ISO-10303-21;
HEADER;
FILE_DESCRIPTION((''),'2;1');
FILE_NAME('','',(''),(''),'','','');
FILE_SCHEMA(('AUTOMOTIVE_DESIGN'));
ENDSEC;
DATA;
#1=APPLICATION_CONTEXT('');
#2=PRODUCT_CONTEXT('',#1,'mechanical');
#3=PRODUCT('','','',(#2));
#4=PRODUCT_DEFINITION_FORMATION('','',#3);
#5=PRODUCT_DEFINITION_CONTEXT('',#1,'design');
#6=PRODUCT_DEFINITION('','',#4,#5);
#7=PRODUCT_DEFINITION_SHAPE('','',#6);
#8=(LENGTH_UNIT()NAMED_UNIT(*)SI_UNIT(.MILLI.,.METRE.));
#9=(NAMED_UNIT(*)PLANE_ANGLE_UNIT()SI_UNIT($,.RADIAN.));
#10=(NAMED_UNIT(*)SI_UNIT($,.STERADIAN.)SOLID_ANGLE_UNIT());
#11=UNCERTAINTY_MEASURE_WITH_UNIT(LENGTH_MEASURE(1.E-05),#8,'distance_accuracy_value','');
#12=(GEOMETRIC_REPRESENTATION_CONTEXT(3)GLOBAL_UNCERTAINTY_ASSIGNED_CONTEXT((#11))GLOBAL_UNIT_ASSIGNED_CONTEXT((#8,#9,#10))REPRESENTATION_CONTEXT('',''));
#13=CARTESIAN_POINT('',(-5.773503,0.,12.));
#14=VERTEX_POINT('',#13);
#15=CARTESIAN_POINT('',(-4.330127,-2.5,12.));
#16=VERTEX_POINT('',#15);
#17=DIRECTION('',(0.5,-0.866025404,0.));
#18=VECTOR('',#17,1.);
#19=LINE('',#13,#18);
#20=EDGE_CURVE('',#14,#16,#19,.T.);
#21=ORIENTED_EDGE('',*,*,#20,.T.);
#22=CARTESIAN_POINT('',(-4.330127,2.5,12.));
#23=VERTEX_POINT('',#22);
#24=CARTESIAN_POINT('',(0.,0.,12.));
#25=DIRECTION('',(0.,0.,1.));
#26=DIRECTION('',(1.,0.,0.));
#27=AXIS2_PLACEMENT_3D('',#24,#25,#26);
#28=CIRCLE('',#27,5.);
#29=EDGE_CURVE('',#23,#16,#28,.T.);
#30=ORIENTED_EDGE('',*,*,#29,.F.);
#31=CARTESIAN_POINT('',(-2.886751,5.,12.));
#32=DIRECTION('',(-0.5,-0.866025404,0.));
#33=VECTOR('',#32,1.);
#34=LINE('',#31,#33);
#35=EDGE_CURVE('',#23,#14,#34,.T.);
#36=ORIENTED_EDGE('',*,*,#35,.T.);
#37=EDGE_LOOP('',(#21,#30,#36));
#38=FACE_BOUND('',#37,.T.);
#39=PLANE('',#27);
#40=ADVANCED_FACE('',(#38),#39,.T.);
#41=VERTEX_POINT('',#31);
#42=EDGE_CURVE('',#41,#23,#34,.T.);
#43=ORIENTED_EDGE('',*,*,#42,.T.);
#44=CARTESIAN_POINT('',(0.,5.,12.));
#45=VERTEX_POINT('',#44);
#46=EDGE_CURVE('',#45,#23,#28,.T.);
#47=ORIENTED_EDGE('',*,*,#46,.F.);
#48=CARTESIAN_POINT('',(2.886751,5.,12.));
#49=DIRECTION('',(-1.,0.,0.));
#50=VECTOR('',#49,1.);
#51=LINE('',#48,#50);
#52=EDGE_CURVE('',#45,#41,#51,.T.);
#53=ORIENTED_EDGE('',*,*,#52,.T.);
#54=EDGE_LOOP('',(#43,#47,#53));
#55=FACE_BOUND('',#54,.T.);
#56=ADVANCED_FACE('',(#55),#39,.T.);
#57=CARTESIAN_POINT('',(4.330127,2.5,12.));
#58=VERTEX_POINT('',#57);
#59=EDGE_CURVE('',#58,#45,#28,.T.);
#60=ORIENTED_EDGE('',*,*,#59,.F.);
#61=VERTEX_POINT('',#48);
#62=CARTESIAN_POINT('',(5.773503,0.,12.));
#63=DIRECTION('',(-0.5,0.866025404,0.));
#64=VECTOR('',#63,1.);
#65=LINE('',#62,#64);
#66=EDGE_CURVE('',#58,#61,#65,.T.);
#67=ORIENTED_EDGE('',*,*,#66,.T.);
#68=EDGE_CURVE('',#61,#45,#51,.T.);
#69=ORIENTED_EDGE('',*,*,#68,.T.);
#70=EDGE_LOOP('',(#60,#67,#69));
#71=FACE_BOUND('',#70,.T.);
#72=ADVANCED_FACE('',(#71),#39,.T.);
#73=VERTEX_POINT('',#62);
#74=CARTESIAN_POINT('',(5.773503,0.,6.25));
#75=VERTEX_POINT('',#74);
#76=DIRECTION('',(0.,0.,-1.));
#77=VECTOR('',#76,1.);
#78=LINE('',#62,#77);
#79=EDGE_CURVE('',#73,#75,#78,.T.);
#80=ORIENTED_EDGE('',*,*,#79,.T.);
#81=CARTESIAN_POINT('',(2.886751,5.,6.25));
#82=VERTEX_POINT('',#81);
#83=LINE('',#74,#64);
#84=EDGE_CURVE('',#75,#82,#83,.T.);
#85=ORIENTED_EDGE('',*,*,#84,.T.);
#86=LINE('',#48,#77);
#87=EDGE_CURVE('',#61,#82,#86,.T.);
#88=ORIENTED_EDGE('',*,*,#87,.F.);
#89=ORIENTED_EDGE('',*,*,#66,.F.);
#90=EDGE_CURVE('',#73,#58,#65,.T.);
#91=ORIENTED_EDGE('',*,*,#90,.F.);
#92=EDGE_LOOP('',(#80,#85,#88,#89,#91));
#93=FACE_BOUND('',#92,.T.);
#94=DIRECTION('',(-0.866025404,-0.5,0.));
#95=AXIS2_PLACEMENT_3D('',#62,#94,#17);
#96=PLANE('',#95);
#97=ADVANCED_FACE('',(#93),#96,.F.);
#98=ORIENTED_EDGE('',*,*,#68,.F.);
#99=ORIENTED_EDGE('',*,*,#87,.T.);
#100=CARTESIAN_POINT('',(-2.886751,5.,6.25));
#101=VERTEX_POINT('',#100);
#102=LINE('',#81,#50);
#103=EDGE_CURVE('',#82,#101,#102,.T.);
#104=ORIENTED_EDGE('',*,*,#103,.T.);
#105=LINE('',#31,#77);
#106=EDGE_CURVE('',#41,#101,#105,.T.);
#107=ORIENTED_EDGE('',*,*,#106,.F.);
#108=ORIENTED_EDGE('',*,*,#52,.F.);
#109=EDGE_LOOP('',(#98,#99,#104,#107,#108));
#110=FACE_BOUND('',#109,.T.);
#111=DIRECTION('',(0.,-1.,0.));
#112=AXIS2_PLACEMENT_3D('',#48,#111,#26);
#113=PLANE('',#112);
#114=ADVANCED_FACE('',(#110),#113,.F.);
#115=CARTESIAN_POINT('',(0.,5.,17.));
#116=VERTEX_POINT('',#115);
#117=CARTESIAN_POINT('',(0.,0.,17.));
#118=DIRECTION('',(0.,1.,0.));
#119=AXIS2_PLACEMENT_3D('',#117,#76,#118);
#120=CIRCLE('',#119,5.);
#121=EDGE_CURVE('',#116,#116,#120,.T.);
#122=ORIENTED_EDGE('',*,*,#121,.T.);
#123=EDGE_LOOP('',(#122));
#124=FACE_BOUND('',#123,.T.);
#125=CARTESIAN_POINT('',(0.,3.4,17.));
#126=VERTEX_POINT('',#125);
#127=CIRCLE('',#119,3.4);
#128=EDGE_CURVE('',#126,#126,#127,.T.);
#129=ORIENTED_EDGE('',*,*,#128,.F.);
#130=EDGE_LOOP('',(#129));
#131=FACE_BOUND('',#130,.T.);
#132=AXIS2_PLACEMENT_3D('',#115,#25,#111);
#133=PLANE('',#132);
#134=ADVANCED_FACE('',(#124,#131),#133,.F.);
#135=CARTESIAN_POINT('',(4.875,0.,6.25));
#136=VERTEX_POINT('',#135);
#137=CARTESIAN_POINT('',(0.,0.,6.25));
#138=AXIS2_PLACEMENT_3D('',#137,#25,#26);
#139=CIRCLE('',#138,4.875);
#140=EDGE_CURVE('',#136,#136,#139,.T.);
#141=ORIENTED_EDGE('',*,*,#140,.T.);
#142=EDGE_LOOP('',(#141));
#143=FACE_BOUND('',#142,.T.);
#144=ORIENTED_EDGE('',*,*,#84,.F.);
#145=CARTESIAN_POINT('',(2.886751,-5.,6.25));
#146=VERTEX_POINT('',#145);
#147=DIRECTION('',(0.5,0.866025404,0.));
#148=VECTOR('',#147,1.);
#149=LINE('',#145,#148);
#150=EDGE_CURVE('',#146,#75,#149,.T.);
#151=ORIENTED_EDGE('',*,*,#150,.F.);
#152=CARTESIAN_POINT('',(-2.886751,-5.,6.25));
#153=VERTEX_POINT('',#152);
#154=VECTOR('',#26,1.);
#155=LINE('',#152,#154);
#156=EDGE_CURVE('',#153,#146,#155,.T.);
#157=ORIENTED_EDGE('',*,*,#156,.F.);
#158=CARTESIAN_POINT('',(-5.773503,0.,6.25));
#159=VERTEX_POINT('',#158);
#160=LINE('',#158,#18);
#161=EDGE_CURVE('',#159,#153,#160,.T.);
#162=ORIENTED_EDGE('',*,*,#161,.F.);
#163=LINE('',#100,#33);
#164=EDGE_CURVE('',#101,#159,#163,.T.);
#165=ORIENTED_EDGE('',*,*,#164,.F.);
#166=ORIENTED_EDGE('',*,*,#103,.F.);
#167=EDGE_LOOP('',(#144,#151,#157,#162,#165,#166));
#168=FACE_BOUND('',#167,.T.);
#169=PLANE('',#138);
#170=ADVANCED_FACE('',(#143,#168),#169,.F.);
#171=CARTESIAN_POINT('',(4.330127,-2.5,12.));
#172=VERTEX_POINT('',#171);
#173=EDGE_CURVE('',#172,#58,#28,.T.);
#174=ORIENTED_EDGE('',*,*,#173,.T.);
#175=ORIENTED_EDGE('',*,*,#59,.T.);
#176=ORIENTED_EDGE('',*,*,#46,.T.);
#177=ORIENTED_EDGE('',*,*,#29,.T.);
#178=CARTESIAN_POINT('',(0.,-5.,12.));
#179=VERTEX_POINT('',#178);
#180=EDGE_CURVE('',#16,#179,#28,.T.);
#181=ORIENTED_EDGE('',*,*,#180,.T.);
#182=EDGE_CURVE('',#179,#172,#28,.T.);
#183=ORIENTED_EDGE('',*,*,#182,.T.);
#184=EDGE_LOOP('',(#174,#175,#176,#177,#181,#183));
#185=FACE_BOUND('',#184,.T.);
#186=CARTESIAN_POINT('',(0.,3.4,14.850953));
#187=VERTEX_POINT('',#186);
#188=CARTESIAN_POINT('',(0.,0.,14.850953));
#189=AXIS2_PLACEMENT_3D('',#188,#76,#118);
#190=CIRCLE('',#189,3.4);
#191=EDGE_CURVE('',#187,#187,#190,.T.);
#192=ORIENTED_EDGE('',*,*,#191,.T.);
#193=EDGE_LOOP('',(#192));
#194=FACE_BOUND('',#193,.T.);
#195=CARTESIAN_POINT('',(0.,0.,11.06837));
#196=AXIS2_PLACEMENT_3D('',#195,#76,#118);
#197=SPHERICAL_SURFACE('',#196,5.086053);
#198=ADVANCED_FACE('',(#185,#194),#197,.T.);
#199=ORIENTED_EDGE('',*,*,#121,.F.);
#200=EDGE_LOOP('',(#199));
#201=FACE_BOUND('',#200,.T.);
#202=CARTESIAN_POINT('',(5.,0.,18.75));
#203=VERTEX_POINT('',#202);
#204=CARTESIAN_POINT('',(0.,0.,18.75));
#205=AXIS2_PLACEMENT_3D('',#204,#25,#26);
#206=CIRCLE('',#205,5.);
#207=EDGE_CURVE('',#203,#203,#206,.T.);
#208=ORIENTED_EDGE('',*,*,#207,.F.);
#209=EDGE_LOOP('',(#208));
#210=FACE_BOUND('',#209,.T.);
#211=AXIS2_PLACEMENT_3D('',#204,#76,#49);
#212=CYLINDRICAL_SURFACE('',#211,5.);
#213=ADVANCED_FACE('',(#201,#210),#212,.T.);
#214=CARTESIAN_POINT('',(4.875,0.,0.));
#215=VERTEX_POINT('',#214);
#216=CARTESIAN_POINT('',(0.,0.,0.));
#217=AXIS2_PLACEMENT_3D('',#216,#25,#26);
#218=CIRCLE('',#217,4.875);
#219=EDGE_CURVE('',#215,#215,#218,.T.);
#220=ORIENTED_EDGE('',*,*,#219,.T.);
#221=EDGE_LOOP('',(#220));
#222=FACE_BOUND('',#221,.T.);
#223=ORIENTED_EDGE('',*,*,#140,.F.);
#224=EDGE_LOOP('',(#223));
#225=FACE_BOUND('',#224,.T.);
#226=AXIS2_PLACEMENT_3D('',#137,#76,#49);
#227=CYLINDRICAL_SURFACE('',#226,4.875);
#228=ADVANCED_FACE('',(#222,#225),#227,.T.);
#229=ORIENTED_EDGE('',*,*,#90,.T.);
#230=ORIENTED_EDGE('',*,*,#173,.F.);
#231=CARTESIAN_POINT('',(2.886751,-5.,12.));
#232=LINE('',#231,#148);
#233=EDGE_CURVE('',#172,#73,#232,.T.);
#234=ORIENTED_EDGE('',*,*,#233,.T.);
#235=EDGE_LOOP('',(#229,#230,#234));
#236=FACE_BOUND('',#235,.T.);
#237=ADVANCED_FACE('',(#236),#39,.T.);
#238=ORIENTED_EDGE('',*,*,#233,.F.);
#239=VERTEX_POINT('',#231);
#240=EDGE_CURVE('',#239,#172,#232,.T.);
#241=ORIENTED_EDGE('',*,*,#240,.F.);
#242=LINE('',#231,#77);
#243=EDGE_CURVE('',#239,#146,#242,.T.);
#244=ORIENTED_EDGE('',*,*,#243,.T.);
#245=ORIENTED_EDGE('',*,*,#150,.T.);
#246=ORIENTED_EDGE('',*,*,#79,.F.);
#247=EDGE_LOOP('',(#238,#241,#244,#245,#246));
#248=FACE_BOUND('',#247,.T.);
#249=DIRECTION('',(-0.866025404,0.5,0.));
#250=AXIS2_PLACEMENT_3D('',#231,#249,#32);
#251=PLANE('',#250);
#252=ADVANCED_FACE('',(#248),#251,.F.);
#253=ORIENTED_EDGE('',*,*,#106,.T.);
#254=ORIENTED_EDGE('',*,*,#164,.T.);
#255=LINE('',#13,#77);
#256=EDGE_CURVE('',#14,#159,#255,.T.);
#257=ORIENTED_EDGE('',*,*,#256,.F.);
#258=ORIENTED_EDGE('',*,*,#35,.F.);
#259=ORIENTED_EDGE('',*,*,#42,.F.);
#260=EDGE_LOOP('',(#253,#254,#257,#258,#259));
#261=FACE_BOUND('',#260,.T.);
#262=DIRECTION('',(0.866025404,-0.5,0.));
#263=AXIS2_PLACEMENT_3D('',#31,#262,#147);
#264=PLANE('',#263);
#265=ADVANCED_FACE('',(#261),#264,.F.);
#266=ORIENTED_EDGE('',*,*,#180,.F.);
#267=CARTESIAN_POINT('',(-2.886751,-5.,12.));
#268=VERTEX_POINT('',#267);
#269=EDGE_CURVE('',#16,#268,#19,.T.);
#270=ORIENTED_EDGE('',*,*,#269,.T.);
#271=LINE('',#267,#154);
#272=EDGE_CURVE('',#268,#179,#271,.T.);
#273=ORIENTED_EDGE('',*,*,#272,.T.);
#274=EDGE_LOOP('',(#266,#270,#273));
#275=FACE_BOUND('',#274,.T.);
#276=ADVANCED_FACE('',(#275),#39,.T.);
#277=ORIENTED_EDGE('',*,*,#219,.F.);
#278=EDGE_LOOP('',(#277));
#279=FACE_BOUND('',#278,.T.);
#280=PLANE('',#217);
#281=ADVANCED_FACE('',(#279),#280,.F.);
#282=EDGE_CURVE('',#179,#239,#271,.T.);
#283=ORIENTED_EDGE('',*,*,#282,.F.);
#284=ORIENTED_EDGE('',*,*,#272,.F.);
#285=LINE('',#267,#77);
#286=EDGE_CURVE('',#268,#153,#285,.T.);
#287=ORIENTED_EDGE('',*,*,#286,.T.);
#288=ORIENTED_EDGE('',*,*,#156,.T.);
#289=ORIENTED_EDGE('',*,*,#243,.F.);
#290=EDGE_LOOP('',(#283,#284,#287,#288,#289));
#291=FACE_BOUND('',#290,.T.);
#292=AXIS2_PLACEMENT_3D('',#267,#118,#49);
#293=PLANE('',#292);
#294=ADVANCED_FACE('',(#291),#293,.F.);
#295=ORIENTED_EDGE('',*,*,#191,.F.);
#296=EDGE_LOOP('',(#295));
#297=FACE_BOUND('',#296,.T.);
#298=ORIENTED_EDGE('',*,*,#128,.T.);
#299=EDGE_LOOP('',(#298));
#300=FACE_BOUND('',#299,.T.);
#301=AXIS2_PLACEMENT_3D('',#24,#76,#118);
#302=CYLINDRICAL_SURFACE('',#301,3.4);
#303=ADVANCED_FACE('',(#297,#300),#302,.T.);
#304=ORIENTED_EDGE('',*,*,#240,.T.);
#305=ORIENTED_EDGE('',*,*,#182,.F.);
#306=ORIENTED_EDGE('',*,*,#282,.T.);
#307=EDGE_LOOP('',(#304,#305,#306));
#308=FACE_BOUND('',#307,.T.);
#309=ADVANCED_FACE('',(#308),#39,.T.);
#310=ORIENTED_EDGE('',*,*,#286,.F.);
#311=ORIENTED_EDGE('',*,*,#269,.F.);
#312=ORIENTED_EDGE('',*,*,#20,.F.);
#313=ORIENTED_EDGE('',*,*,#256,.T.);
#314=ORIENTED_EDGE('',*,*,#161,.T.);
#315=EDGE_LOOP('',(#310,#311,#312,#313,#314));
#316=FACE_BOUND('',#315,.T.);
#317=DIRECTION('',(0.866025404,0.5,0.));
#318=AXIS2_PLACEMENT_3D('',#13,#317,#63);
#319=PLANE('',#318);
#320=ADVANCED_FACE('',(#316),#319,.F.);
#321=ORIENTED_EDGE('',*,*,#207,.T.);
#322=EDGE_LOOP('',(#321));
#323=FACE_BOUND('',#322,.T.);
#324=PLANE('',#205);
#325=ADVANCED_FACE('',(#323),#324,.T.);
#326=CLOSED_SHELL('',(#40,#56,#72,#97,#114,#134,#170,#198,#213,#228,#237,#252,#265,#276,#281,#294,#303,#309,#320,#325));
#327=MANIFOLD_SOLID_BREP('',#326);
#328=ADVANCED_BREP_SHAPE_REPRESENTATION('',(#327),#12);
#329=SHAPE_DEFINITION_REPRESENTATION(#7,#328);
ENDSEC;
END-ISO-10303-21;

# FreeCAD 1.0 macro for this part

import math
import FreeCAD as App
import Part
import Sketcher
from FreeCAD import Vector
Q = App.Units.Quantity

doc = App.newDocument("Part")
params = doc.addObject("Spreadsheet::Sheet", "Params")
for row, (alias, value) in enumerate([
    ("sketch1_diameter", "9.75 mm"),
    ("pad1_length", "6.25 mm"),
    ("pad2_length", "5.75 mm"),
    ("sketch3_diameter", "10 mm"),
    ("pad3_length", "6.75 mm"),
    ("sketch4_height", "5 mm"),
    ("sketch4_width", "1.6 mm"),
    ("groove_angle", "360 deg"),
], start=1):
    params.set(f"A{row}", alias)
    params.set(f"B{row}", "=" + value)
    params.setAlias(f"B{row}", alias)

body = doc.addObject("PartDesign::Body", "Body")

# Sketch on XY plane
sketch1 = doc.addObject("Sketcher::SketchObject", "Sketch")
body.addObject(sketch1)
sketch1.AttachmentSupport = (doc.XY_Plane, [""])
sketch1.MapMode = "FlatFace"
sketch1.addGeometry(Part.Circle(Vector(0, 0, 0), Vector(0, 0, 1), 4.9), False)
sketch1.addConstraint([
    Sketcher.Constraint("Coincident", 0, 3, -1, 1),
    Sketcher.Constraint("Diameter", 0, 9.75),
])
sketch1.setExpression("Constraints[1]", "Params.sketch1_diameter")
pad1 = doc.addObject("PartDesign::Pad", "Pad")
body.addObject(pad1)
pad1.Profile = sketch1
pad1.setExpression("Length", "Params.pad1_length")

# Sketch on XY plane
sketch2 = doc.addObject("Sketcher::SketchObject", "Sketch001")
body.addObject(sketch2)
sketch2.AttachmentSupport = (doc.XY_Plane, [""])
sketch2.MapMode = "FlatFace"
sketch2.AttachmentOffset = App.Placement(Vector(0, 0, 6.25), App.Rotation())
sketch2.addGeometry([
    Part.LineSegment(Vector(6, 0, 0), Vector(3, 5, 0)),  # 0
    Part.LineSegment(Vector(3, 5, 0), Vector(-3, 5, 0)),  # 1
    Part.LineSegment(Vector(-3, 5, 0), Vector(-6, 0, 0)),  # 2
    Part.LineSegment(Vector(-6, 0, 0), Vector(-3, -5, 0)),  # 3
    Part.LineSegment(Vector(-3, -5, 0), Vector(3, -5, 0)),  # 4
    Part.LineSegment(Vector(3, -5, 0), Vector(6, 0, 0)),  # 5
], False)
sketch2.addConstraint([
    Sketcher.Constraint("Coincident", 0, 2, 1, 1),
    Sketcher.Constraint("Coincident", 1, 2, 2, 1),
    Sketcher.Constraint("Coincident", 2, 2, 3, 1),
    Sketcher.Constraint("Coincident", 3, 2, 4, 1),
    Sketcher.Constraint("Coincident", 4, 2, 5, 1),
    Sketcher.Constraint("Coincident", 5, 2, 0, 1),
    Sketcher.Constraint("Horizontal", 1),
    Sketcher.Constraint("Horizontal", 4),
    Sketcher.Constraint("Symmetric", 0, 2, 3, 2, -1, 1),
    Sketcher.Constraint("Symmetric", 2, 2, 5, 2, -1, 1),
    Sketcher.Constraint("PointOnObject", 2, 2, -1),
    Sketcher.Constraint("Parallel", 2, 5),
    Sketcher.Constraint("Vertical", 1, 2, 3, 2),
    Sketcher.Constraint("Angle", 0, Q("120 deg")),
    Sketcher.Constraint("DistanceY", -1, 1, 0, 2, 5.0),
    Sketcher.Constraint("DistanceX", 1, 2, 1, 1, 5.773503),
])
pad2 = doc.addObject("PartDesign::Pad", "Pad001")
body.addObject(pad2)
pad2.Profile = sketch2
pad2.setExpression("Length", "Params.pad2_length")

# Sketch on XY plane
sketch3 = doc.addObject("Sketcher::SketchObject", "Sketch002")
body.addObject(sketch3)
sketch3.AttachmentSupport = (doc.XY_Plane, [""])
sketch3.MapMode = "FlatFace"
sketch3.AttachmentOffset = App.Placement(Vector(0, 0, 12), App.Rotation())
sketch3.addGeometry(Part.Circle(Vector(0, 0, 0), Vector(0, 0, 1), 5), False)
sketch3.addConstraint([
    Sketcher.Constraint("Coincident", 0, 3, -1, 1),
    Sketcher.Constraint("Diameter", 0, 10.0),
])
sketch3.setExpression("Constraints[1]", "Params.sketch3_diameter")
pad3 = doc.addObject("PartDesign::Pad", "Pad002")
body.addObject(pad3)
pad3.Profile = sketch3
pad3.setExpression("Length", "Params.pad3_length")

# Sketch on YZ plane
sketch4 = doc.addObject("Sketcher::SketchObject", "Sketch003")
body.addObject(sketch4)
sketch4.AttachmentSupport = (doc.YZ_Plane, [""])
sketch4.MapMode = "FlatFace"
sketch4.addGeometry([
    Part.LineSegment(Vector(5, 17, 0), Vector(3.4, 17, 0)),
    Part.LineSegment(Vector(3.4, 17, 0), Vector(3.4, 14.9, 0)),
    Part.ArcOfCircle(Part.Circle(Vector(0, 11.1, 0), Vector(0, 0, 1), 5.1), math.radians(11), math.radians(48)),
    Part.LineSegment(Vector(5, 12, 0), Vector(5, 17, 0)),
], False)
sketch4.addConstraint([
    Sketcher.Constraint("Coincident", 0, 2, 1, 1),
    Sketcher.Constraint("Coincident", 1, 2, 2, 2),
    Sketcher.Constraint("Coincident", 2, 1, 3, 1),
    Sketcher.Constraint("Coincident", 3, 2, 0, 1),
    Sketcher.Constraint("Horizontal", 0),
    Sketcher.Constraint("Vertical", 1),
    Sketcher.Constraint("Vertical", 3),
    Sketcher.Constraint("PointOnObject", 2, 3, -2),
    Sketcher.Constraint("DistanceY", 3, 1, 3, 2, 5.0),
    Sketcher.Constraint("DistanceX", 0, 2, 0, 1, 1.6),
    Sketcher.Constraint("DistanceY", -1, 1, 0, 2, 17.0),
    Sketcher.Constraint("DistanceX", -1, 1, 2, 1, 5.0),
    Sketcher.Constraint("Radius", 2, 5.086053),
])
sketch4.setExpression("Constraints[8]", "Params.sketch4_height")
sketch4.setExpression("Constraints[9]", "Params.sketch4_width")
groove = doc.addObject("PartDesign::Groove", "Groove")
body.addObject(groove)
groove.Profile = sketch4
groove.ReferenceAxis = (sketch4, ["V_Axis"])
groove.setExpression("Angle", "Params.groove_angle")

doc.recompute()
